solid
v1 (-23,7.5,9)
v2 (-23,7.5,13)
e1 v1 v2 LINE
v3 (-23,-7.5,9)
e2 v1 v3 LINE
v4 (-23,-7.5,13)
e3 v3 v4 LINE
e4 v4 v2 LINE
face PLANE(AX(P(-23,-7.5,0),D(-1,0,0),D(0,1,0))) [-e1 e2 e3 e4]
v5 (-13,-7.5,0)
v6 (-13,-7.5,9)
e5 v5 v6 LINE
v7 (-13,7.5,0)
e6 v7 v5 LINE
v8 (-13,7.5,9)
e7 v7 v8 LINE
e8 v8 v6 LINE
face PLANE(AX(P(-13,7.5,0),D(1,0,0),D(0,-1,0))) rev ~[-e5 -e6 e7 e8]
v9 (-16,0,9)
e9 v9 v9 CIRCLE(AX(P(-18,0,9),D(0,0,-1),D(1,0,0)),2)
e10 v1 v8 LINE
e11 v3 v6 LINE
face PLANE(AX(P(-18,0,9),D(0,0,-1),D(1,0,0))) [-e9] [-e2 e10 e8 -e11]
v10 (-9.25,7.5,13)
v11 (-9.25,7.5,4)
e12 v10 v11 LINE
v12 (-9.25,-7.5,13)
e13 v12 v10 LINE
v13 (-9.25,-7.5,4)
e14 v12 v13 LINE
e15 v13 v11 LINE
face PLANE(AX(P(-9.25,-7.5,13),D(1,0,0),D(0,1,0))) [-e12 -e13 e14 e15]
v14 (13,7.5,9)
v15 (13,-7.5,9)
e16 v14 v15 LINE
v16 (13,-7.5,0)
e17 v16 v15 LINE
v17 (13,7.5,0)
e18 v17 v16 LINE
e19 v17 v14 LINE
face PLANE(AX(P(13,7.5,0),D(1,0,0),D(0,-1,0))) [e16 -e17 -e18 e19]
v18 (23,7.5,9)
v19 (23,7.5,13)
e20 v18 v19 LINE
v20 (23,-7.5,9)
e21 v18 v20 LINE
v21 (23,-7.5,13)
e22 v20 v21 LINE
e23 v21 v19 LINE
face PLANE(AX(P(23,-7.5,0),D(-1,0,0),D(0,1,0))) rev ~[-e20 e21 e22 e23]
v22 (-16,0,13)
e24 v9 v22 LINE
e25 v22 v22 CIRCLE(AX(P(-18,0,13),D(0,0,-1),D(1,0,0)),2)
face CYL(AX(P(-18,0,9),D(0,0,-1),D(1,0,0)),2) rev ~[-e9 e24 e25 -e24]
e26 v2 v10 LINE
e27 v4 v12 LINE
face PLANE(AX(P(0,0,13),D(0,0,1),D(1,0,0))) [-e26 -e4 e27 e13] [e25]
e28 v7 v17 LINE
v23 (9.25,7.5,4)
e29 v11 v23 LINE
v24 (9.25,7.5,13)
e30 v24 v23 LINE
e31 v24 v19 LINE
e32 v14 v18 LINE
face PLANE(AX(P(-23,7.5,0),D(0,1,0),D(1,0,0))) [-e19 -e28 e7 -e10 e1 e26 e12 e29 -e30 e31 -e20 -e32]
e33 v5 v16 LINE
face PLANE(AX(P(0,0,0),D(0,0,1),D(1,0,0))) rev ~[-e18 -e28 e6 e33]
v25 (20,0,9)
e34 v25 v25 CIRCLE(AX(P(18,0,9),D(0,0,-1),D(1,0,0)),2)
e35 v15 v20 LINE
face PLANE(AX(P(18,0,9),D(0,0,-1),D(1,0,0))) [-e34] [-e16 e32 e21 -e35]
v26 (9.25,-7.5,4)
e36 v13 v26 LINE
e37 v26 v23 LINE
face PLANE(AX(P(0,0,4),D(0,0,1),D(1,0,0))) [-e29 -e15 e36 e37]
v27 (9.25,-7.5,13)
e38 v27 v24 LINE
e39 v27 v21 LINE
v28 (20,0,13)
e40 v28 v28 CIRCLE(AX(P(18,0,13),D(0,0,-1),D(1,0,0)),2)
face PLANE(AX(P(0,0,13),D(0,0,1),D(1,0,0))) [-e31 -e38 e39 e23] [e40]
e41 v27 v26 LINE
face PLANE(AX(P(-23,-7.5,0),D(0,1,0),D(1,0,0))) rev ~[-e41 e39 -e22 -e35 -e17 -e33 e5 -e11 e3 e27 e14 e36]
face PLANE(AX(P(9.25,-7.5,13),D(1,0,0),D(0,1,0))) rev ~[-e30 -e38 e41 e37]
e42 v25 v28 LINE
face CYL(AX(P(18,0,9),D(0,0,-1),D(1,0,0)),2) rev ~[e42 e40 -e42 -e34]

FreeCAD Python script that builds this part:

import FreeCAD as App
import Part
import Sketcher
Q = App.Units.Quantity

doc = App.newDocument("Part")
body = doc.addObject("PartDesign::Body", "Body")

# Sketch on XY plane
sketch1 = body.newObject("Sketcher::SketchObject", "Sketch")
sketch1.AttachmentSupport = (doc.getObject("XY_Plane"), [""])
sketch1.MapMode = "FlatFace"
sketch1.addGeometry(Part.LineSegment(App.Vector(-23, 7.5, 0), App.Vector(-23, -7.5, 0)), False)
sketch1.addGeometry(Part.LineSegment(App.Vector(-23, -7.5, 0), App.Vector(23, -7.5, 0)), False)
sketch1.addGeometry(Part.LineSegment(App.Vector(23, -7.5, 0), App.Vector(23, 7.5, 0)), False)
sketch1.addGeometry(Part.LineSegment(App.Vector(23, 7.5, 0), App.Vector(-23, 7.5, 0)), False)
sketch1.addConstraint(Sketcher.Constraint("Coincident", 0, 2, 1, 1))
sketch1.addConstraint(Sketcher.Constraint("Coincident", 1, 2, 2, 1))
sketch1.addConstraint(Sketcher.Constraint("Coincident", 2, 2, 3, 1))
sketch1.addConstraint(Sketcher.Constraint("Coincident", 3, 2, 0, 1))
sketch1.addConstraint(Sketcher.Constraint("Vertical", 0))
sketch1.addConstraint(Sketcher.Constraint("Horizontal", 1))
sketch1.addConstraint(Sketcher.Constraint("Vertical", 2))
sketch1.addConstraint(Sketcher.Constraint("Horizontal", 3))
sketch1.addConstraint(Sketcher.Constraint("Symmetric", 0, 2, 2, 2, -1, 1))
sketch1.addConstraint(Sketcher.Constraint("DistanceX", 1, 1, 1, 2, Q("46 mm")))
sketch1.addConstraint(Sketcher.Constraint("DistanceY", 0, 2, 0, 1, Q("15 mm")))
pad1 = body.newObject("PartDesign::Pad", "Pad")
pad1.Profile = sketch1
pad1.Length = 13

# Sketch on XY plane
sketch2 = body.newObject("Sketcher::SketchObject", "Sketch001")
sketch2.AttachmentSupport = (doc.getObject("XY_Plane"), [""])
sketch2.MapMode = "FlatFace"
sketch2.AttachmentOffset = App.Placement(App.Vector(0, 0, 13), App.Rotation())
sketch2.addGeometry(Part.LineSegment(App.Vector(-9.25, 7.5, 0), App.Vector(-9.25, -7.5, 0)), False)
sketch2.addGeometry(Part.LineSegment(App.Vector(-9.25, -7.5, 0), App.Vector(9.25, -7.5, 0)), False)
sketch2.addGeometry(Part.LineSegment(App.Vector(9.25, -7.5, 0), App.Vector(9.25, 7.5, 0)), False)
sketch2.addGeometry(Part.LineSegment(App.Vector(9.25, 7.5, 0), App.Vector(-9.25, 7.5, 0)), False)
sketch2.addConstraint(Sketcher.Constraint("Coincident", 0, 2, 1, 1))
sketch2.addConstraint(Sketcher.Constraint("Coincident", 1, 2, 2, 1))
sketch2.addConstraint(Sketcher.Constraint("Coincident", 2, 2, 3, 1))
sketch2.addConstraint(Sketcher.Constraint("Coincident", 3, 2, 0, 1))
sketch2.addConstraint(Sketcher.Constraint("Vertical", 0))
sketch2.addConstraint(Sketcher.Constraint("Horizontal", 1))
sketch2.addConstraint(Sketcher.Constraint("Vertical", 2))
sketch2.addConstraint(Sketcher.Constraint("Horizontal", 3))
sketch2.addConstraint(Sketcher.Constraint("Symmetric", 0, 2, 2, 2, -1, 1))
sketch2.addConstraint(Sketcher.Constraint("DistanceY", 0, 2, 0, 1, Q("15 mm")))
sketch2.addConstraint(Sketcher.Constraint("DistanceX", 1, 1, 1, 2, Q("18.5 mm")))
pocket1 = body.newObject("PartDesign::Pocket", "Pocket")
pocket1.Profile = sketch2
pocket1.Length = 9

# Sketch on XY plane
sketch3 = body.newObject("Sketcher::SketchObject", "Sketch002")
sketch3.AttachmentSupport = (doc.getObject("XY_Plane"), [""])
sketch3.MapMode = "FlatFace"
sketch3.addGeometry(Part.LineSegment(App.Vector(-23, -7.5, 0), App.Vector(-23, 7.5, 0)), False)
sketch3.addGeometry(Part.LineSegment(App.Vector(-23, 7.5, 0), App.Vector(-13, 7.5, 0)), False)
sketch3.addGeometry(Part.LineSegment(App.Vector(-13, 7.5, 0), App.Vector(-13, -7.5, 0)), False)
sketch3.addGeometry(Part.LineSegment(App.Vector(-13, -7.5, 0), App.Vector(-23, -7.5, 0)), False)
sketch3.addGeometry(Part.LineSegment(App.Vector(13, -7.5, 0), App.Vector(13, 7.5, 0)), False)
sketch3.addGeometry(Part.LineSegment(App.Vector(13, 7.5, 0), App.Vector(23, 7.5, 0)), False)
sketch3.addGeometry(Part.LineSegment(App.Vector(23, 7.5, 0), App.Vector(23, -7.5, 0)), False)
sketch3.addGeometry(Part.LineSegment(App.Vector(23, -7.5, 0), App.Vector(13, -7.5, 0)), False)
sketch3.addConstraint(Sketcher.Constraint("Coincident", 0, 2, 1, 1))
sketch3.addConstraint(Sketcher.Constraint("Coincident", 1, 2, 2, 1))
sketch3.addConstraint(Sketcher.Constraint("Coincident", 2, 2, 3, 1))
sketch3.addConstraint(Sketcher.Constraint("Coincident", 3, 2, 0, 1))
sketch3.addConstraint(Sketcher.Constraint("Coincident", 4, 2, 5, 1))
sketch3.addConstraint(Sketcher.Constraint("Coincident", 5, 2, 6, 1))
sketch3.addConstraint(Sketcher.Constraint("Coincident", 6, 2, 7, 1))
sketch3.addConstraint(Sketcher.Constraint("Coincident", 7, 2, 4, 1))
sketch3.addConstraint(Sketcher.Constraint("Vertical", 0))
sketch3.addConstraint(Sketcher.Constraint("Horizontal", 1))
sketch3.addConstraint(Sketcher.Constraint("Vertical", 2))
sketch3.addConstraint(Sketcher.Constraint("Horizontal", 3))
sketch3.addConstraint(Sketcher.Constraint("Vertical", 4))
sketch3.addConstraint(Sketcher.Constraint("Horizontal", 5))
sketch3.addConstraint(Sketcher.Constraint("Vertical", 6))
sketch3.addConstraint(Sketcher.Constraint("Horizontal", 7))
sketch3.addConstraint(Sketcher.Constraint("Symmetric", 2, 2, 4, 2, -1, 1))
sketch3.addConstraint(Sketcher.Constraint("Symmetric", 0, 2, 6, 2, -1, 1))
sketch3.addConstraint(Sketcher.Constraint("Horizontal", 1, 2, 4, 2))
sketch3.addConstraint(Sketcher.Constraint("DistanceX", 1, 1, 1, 2, Q("10 mm")))
sketch3.addConstraint(Sketcher.Constraint("DistanceY", 0, 1, 0, 2, Q("15 mm")))
sketch3.addConstraint(Sketcher.Constraint("DistanceX", 0, 2, -1, 1, Q("23 mm")))
pocket2 = body.newObject("PartDesign::Pocket", "Pocket001")
pocket2.Profile = sketch3
pocket2.Length = 9
pocket2.Reversed = True

# Sketch on XY plane
sketch4 = body.newObject("Sketcher::SketchObject", "Sketch003")
sketch4.AttachmentSupport = (doc.getObject("XY_Plane"), [""])
sketch4.MapMode = "FlatFace"
sketch4.AttachmentOffset = App.Placement(App.Vector(0, 0, 9), App.Rotation())
sketch4.addGeometry(Part.Circle(App.Vector(-18, 0, 0), App.Vector(0, 0, 1), 2), False)
sketch4.addGeometry(Part.Circle(App.Vector(18, 0, 0), App.Vector(0, 0, 1), 2), False)
sketch4.addConstraint(Sketcher.Constraint("Equal", 0, 1))
sketch4.addConstraint(Sketcher.Constraint("Symmetric", 0, 3, 1, 3, -1, 1))
sketch4.addConstraint(Sketcher.Constraint("PointOnObject", 0, 3, -1))
sketch4.addConstraint(Sketcher.Constraint("Diameter", 0, Q("4 mm")))
sketch4.addConstraint(Sketcher.Constraint("DistanceX", 0, 3, -1, 1, Q("18 mm")))
pocket3 = body.newObject("PartDesign::Pocket", "Pocket002")
pocket3.Profile = sketch4
pocket3.Length = 25
pocket3.Reversed = True

doc.recompute()
